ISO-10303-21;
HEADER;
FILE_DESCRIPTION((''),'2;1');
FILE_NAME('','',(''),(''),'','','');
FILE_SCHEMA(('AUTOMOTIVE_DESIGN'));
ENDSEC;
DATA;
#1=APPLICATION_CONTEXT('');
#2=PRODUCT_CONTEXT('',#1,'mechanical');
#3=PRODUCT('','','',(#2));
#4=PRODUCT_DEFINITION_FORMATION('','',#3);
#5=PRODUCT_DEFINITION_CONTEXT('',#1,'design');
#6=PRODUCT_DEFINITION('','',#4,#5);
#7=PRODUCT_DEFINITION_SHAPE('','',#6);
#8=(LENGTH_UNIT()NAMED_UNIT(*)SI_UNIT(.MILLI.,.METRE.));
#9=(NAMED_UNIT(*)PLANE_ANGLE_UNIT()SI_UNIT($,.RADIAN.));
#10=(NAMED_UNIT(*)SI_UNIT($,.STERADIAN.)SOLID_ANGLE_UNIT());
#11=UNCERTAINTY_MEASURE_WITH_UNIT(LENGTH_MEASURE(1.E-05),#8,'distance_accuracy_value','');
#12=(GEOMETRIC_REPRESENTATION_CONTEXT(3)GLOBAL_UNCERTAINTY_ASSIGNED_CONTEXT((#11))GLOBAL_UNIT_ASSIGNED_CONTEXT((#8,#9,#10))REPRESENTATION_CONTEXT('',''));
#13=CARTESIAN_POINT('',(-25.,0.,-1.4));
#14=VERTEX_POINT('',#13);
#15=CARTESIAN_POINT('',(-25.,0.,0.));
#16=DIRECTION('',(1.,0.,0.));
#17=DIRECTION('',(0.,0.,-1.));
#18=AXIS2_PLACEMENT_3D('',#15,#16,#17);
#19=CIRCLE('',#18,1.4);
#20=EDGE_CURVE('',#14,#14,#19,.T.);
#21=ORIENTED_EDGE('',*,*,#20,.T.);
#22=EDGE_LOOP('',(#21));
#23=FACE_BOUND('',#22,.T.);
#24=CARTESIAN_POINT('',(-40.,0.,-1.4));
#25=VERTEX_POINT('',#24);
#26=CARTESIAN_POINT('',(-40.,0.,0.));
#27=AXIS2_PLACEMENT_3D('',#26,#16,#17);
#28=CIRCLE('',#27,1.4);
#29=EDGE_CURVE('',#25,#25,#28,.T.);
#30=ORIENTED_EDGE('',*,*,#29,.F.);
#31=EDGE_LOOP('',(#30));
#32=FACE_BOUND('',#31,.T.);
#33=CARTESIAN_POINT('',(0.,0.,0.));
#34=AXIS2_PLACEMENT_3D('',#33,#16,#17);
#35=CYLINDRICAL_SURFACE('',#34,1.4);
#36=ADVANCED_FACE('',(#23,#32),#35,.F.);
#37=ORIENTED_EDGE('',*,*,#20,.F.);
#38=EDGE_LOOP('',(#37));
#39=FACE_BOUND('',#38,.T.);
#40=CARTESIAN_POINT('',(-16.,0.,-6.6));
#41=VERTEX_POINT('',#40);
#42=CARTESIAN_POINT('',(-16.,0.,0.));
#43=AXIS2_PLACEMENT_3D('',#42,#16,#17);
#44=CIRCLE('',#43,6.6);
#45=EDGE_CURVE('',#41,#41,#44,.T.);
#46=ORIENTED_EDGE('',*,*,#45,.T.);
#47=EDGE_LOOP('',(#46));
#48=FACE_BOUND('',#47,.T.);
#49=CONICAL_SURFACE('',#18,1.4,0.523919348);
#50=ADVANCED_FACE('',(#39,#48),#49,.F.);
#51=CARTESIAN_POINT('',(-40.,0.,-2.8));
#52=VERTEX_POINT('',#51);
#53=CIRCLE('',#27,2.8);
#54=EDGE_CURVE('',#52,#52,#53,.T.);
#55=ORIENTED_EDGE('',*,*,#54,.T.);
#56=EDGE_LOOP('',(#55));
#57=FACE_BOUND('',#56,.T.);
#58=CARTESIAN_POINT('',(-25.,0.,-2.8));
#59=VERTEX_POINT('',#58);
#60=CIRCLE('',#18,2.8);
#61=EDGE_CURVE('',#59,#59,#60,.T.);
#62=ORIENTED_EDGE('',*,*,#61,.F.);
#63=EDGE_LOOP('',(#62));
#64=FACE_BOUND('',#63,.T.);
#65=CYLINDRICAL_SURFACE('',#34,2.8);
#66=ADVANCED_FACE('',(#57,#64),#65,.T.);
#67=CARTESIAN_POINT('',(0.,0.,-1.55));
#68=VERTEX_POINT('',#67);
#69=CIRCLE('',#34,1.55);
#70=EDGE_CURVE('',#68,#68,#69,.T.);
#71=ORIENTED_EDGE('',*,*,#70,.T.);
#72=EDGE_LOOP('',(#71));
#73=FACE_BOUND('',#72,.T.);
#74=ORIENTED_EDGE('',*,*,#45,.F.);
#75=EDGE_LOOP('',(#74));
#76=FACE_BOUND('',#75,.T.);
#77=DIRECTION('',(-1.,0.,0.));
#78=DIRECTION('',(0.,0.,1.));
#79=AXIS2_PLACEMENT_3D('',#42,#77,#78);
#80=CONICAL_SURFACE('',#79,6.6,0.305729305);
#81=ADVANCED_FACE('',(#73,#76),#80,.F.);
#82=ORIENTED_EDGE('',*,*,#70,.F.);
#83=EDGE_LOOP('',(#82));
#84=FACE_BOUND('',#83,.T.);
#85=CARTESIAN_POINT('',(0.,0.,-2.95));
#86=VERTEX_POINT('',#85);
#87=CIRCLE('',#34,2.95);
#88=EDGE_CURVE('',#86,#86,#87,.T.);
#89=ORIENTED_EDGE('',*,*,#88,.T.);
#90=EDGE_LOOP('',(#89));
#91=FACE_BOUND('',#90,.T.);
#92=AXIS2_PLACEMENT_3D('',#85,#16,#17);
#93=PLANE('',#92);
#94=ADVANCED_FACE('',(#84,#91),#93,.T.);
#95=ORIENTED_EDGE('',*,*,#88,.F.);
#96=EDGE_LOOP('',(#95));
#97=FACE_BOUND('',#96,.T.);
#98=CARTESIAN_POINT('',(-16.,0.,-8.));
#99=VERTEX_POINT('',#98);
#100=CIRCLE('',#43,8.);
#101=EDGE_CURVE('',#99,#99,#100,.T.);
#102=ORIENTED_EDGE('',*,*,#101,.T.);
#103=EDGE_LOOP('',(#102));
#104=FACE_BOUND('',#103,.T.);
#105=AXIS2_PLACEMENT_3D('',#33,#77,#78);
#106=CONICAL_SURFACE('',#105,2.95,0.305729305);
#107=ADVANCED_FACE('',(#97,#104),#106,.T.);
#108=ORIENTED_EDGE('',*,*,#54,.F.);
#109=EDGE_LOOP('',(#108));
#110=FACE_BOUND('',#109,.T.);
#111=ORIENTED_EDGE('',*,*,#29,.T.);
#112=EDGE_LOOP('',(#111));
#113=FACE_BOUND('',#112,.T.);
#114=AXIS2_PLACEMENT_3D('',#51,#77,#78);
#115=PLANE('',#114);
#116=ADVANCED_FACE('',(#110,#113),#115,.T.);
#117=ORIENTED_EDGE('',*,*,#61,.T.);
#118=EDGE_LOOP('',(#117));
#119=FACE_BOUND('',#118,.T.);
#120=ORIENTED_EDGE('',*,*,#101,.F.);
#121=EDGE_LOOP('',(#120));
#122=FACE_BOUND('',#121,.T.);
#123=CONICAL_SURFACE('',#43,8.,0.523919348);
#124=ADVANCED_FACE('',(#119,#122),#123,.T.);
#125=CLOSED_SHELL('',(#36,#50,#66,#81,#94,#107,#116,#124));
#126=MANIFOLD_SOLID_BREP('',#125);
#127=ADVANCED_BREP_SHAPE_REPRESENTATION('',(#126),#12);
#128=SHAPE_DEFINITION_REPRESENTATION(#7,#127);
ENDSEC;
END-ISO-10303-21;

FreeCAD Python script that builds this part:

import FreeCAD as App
import Part
import Sketcher

V = App.Vector
Q = App.Units.Quantity

doc = App.newDocument("Part")
body = doc.addObject("PartDesign::Body", "Body")

sketch1 = body.newObject("Sketcher::SketchObject", "Sketch")
sketch1.AttachmentSupport = (doc.getObject("XZ_Plane"), [""])
sketch1.MapMode = "FlatFace"
sketch1.addGeometry([
    Part.LineSegment(V(-40, -1.4, 0), V(-25, -1.4, 0)),
    Part.LineSegment(V(-25, -1.4, 0), V(-16, -6.6, 0)),
    Part.LineSegment(V(-16, -6.6, 0), V(0, -1.6, 0)),
    Part.LineSegment(V(0, -1.6, 0), V(0, -3, 0)),
    Part.LineSegment(V(0, -3, 0), V(-16, -8, 0)),
    Part.LineSegment(V(-16, -8, 0), V(-25, -2.8, 0)),
    Part.LineSegment(V(-25, -2.8, 0), V(-40, -2.8, 0)),
    Part.LineSegment(V(-40, -2.8, 0), V(-40, -1.4, 0)),
], False)
sketch1.addConstraint([
    Sketcher.Constraint("Coincident", 0, 2, 1, 1),
    Sketcher.Constraint("Coincident", 1, 2, 2, 1),
    Sketcher.Constraint("Coincident", 2, 2, 3, 1),
    Sketcher.Constraint("Coincident", 3, 2, 4, 1),
    Sketcher.Constraint("Coincident", 4, 2, 5, 1),
    Sketcher.Constraint("Coincident", 5, 2, 6, 1),
    Sketcher.Constraint("Coincident", 6, 2, 7, 1),
    Sketcher.Constraint("Coincident", 7, 2, 0, 1),
    Sketcher.Constraint("Horizontal", 0),
    Sketcher.Constraint("Vertical", 3),
    Sketcher.Constraint("Horizontal", 6),
    Sketcher.Constraint("Vertical", 7),
    Sketcher.Constraint("PointOnObject", 2, 2, -2),
    Sketcher.Constraint("Parallel", 2, 4),
    Sketcher.Constraint("Parallel", 1, 5),
    Sketcher.Constraint("Vertical", 1, 2, 4, 2),
    Sketcher.Constraint("Vertical", 0, 2, 5, 2),
    Sketcher.Constraint("DistanceX", 0, 1, 0, 2, Q("15 mm")),
    Sketcher.Constraint("DistanceY", 3, 2, 3, 1, Q("1.4 mm")),
    Sketcher.Constraint("DistanceX", 0, 2, -1, 1, Q("25 mm")),
    Sketcher.Constraint("DistanceX", 1, 2, -1, 1, Q("16 mm")),
    Sketcher.Constraint("DistanceY", 4, 2, -1, 1, Q("8 mm")),
    Sketcher.Constraint("DistanceY", 0, 2, -1, 1, Q("1.4 mm")),
    Sketcher.Constraint("DistanceY", 2, 2, -1, 1, Q("1.55 mm")),
])
revolution = body.newObject("PartDesign::Revolution", "Revolution")
revolution.Profile = sketch1
revolution.ReferenceAxis = (sketch1, ["H_Axis"])
revolution.Angle = 360

doc.recompute()
